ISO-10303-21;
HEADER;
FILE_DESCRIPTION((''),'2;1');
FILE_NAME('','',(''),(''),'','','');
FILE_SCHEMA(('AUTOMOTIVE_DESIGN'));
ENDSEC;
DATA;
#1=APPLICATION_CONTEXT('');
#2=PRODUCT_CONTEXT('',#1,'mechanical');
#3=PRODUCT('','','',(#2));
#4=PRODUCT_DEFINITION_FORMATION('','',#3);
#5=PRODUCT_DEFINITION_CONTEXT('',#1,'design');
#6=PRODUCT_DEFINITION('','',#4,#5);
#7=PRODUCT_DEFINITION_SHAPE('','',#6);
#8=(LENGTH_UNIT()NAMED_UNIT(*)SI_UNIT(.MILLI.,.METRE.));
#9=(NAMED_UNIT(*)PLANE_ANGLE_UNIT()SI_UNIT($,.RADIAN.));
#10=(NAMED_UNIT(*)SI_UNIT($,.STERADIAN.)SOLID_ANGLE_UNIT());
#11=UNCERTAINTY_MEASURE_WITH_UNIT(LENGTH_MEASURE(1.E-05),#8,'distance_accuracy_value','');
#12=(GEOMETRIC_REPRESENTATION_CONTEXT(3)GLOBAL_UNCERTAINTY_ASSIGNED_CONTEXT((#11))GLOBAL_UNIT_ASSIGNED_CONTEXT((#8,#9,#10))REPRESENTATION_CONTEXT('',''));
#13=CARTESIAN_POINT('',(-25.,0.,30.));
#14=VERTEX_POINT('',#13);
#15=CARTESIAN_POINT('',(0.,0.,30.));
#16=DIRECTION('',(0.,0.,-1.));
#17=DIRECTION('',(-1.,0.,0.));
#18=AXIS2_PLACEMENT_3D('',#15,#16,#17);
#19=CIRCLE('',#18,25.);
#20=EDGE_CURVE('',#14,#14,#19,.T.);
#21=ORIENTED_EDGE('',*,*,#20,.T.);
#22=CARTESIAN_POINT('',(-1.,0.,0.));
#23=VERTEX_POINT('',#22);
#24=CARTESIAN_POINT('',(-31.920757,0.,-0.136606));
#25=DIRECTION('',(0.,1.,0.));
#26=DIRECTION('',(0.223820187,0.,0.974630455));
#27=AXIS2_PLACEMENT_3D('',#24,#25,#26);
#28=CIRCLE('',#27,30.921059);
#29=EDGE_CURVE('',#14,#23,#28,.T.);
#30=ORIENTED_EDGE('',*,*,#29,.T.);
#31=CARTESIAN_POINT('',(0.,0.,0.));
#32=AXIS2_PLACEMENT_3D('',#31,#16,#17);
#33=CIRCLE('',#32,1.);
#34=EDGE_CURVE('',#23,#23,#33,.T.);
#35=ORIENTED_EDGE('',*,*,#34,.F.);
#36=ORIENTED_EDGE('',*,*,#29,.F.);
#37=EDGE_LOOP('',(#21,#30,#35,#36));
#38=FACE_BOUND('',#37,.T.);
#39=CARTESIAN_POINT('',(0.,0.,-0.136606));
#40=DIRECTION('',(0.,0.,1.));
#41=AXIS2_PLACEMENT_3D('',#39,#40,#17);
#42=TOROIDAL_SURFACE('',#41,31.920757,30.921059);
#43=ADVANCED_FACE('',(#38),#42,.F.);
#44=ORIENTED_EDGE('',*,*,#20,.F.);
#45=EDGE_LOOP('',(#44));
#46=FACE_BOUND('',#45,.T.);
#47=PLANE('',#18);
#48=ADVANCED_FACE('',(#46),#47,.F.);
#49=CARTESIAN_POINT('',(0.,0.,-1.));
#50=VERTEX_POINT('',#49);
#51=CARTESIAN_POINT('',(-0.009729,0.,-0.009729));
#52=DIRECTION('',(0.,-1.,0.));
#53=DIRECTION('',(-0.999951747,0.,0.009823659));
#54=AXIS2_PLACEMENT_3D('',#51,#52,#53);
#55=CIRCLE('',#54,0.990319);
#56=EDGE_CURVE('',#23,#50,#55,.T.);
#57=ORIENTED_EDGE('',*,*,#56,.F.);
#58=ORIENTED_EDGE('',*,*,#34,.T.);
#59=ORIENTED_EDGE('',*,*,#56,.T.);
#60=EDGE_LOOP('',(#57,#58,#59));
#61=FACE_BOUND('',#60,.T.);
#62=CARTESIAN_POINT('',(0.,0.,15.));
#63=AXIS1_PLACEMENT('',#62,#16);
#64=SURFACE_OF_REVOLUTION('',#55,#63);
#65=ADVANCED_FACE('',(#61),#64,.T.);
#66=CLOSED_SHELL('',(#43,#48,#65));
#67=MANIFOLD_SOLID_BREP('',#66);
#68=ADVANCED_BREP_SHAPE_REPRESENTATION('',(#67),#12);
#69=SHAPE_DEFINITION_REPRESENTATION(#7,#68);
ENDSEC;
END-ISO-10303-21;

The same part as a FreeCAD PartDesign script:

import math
import FreeCAD as App
import Part
import Sketcher

V = App.Vector
Q = App.Units.Quantity

doc = App.newDocument("Part")
body = doc.addObject("PartDesign::Body", "Body")

# Sketch on XZ plane
sketch1 = body.newObject("Sketcher::SketchObject", "Sketch")
sketch1.AttachmentSupport = (doc.getObject("XZ_Plane"), [""])
sketch1.MapMode = "FlatFace"
sketch1.addGeometry([
    Part.LineSegment(V(0, 30, 0), V(-25, 30, 0)),
    Part.ArcOfCircle(Part.Circle(V(-31.9, -0.1, 0), V(0, 0, 1), 30.9), math.radians(0), math.radians(77)),
    Part.ArcOfCircle(Part.Circle(V(0, 0, 0), V(0, 0, 1), 1), math.radians(179), math.radians(271)),
    Part.LineSegment(V(0, -1, 0), V(0, 30, 0)),
], False)
sketch1.addConstraint([
    Sketcher.Constraint("Coincident", 0, 2, 1, 2),
    Sketcher.Constraint("Coincident", 1, 1, 2, 1),
    Sketcher.Constraint("Coincident", 2, 2, 3, 1),
    Sketcher.Constraint("Coincident", 3, 2, 0, 1),
    Sketcher.Constraint("Horizontal", 0),
    Sketcher.Constraint("Vertical", 3),
    Sketcher.Constraint("PointOnObject", 1, 1, -1),
    Sketcher.Constraint("PointOnObject", 2, 2, -2),
    Sketcher.Constraint("DistanceX", 0, 2, 0, 1, Q("25 mm")),
    Sketcher.Constraint("DistanceY", 3, 1, 3, 2, Q("31 mm")),
    Sketcher.Constraint("DistanceY", -1, 1, 0, 2, Q("30 mm")),
    Sketcher.Constraint("DistanceX", 1, 1, -1, 1, Q("1 mm")),
    Sketcher.Constraint("Radius", 1, Q("30.921059 mm")),
    Sketcher.Constraint("Radius", 2, Q("0.990319 mm")),
])
revolution = body.newObject("PartDesign::Revolution", "Revolution")
revolution.Profile = sketch1
revolution.ReferenceAxis = (sketch1, ["V_Axis"])
revolution.Angle = 360

doc.recompute()
